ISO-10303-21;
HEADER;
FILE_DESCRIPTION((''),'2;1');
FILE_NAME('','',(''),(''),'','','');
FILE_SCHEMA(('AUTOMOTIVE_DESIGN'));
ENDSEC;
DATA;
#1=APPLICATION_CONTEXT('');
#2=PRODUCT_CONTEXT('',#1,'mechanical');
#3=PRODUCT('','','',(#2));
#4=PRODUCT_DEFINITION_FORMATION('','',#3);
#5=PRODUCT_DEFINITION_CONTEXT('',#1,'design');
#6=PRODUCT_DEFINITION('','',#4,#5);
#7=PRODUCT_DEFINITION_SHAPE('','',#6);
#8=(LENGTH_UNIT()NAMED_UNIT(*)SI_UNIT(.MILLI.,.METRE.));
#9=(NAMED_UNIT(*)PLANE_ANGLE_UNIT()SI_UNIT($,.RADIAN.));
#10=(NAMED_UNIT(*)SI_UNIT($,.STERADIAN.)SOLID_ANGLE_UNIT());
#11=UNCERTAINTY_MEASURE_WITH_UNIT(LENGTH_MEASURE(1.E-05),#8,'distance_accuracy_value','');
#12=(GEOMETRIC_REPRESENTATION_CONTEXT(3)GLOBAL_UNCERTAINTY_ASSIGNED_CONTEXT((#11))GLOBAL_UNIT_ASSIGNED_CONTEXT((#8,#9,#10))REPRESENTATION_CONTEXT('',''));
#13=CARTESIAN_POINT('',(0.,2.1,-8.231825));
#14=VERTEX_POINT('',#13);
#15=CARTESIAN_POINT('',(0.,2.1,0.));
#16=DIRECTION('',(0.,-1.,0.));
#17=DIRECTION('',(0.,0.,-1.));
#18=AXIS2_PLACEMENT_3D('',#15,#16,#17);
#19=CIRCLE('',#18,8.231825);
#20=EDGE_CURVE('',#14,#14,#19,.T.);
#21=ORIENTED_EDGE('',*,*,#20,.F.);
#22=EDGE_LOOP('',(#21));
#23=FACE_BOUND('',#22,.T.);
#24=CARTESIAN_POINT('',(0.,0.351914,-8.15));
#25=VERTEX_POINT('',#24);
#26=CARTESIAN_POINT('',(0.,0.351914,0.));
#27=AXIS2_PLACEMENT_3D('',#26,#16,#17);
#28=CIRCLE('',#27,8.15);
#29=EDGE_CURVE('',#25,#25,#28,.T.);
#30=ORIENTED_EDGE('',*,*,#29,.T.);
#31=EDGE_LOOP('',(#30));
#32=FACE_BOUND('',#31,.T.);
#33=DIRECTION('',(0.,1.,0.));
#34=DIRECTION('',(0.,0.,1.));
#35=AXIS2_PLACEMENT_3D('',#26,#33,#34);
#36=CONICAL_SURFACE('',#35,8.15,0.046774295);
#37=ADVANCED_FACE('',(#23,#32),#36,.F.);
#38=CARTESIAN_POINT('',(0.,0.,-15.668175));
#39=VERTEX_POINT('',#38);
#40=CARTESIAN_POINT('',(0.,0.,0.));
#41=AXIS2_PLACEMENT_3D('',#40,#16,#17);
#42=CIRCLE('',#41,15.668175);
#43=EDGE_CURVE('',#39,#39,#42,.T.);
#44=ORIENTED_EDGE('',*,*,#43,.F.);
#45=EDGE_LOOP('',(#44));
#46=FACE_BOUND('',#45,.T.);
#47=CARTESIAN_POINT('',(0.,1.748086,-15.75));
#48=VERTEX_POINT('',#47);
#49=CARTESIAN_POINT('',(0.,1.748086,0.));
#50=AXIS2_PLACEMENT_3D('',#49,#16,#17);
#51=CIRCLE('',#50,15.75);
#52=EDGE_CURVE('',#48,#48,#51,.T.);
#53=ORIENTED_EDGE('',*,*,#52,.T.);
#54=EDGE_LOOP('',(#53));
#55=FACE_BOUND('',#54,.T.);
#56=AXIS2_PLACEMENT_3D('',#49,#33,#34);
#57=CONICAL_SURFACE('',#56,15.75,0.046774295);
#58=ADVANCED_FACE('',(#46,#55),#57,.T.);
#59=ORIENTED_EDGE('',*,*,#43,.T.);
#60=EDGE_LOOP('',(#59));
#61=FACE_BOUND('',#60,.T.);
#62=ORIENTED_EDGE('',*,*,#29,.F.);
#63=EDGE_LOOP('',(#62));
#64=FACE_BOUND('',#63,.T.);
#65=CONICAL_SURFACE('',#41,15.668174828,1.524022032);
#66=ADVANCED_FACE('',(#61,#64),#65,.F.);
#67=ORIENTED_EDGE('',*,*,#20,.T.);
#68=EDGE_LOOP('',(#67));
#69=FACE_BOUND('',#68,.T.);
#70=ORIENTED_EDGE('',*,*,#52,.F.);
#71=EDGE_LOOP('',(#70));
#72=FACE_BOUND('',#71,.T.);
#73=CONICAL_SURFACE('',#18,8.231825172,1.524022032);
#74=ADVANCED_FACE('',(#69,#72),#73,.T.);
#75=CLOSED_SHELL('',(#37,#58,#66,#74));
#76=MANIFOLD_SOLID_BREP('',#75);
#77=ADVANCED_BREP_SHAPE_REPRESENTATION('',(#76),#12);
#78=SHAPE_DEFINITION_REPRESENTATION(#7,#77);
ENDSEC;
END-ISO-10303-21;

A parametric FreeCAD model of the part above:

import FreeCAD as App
import Part
import Sketcher

V = App.Vector
Q = App.Units.Quantity

doc = App.newDocument("Part")
body = doc.addObject("PartDesign::Body", "Body")

# Sketch on YZ plane
sketch1 = doc.addObject("Sketcher::SketchObject", "Sketch")
body.addObject(sketch1)
sketch1.AttachmentSupport = (doc.YZ_Plane, [""])
sketch1.MapMode = "FlatFace"
sketch1.addGeometry(Part.LineSegment(V(0, 15.668175, 0), V(0.351914, 8.15, 0)), False)
sketch1.addGeometry(Part.LineSegment(V(0.351914, 8.15, 0), V(2.1, 8.231825, 0)), False)
sketch1.addGeometry(Part.LineSegment(V(2.1, 8.231825, 0), V(1.748086, 15.75, 0)), False)
sketch1.addGeometry(Part.LineSegment(V(1.748086, 15.75, 0), V(0, 15.668175, 0)), False)
sketch1.addConstraint(Sketcher.Constraint("Coincident", 0, 2, 1, 1))
sketch1.addConstraint(Sketcher.Constraint("Coincident", 1, 2, 2, 1))
sketch1.addConstraint(Sketcher.Constraint("Coincident", 2, 2, 3, 1))
sketch1.addConstraint(Sketcher.Constraint("Coincident", 3, 2, 0, 1))
sketch1.addConstraint(Sketcher.Constraint("PointOnObject", 3, 2, -2))
sketch1.addConstraint(Sketcher.Constraint("Perpendicular", 0, 1))
sketch1.addConstraint(Sketcher.Constraint("Perpendicular", 1, 2))
sketch1.addConstraint(Sketcher.Constraint("Perpendicular", 2, 3))
sketch1.addConstraint(Sketcher.Constraint("DistanceX", -1, 1, 1, 2, Q("2.1 mm")))
sketch1.addConstraint(Sketcher.Constraint("DistanceY", 0, 2, 2, 2, Q("7.6 mm")))
sketch1.addConstraint(Sketcher.Constraint("Distance", 1, Q("1.75 mm")))
sketch1.addConstraint(Sketcher.Constraint("DistanceY", -1, 1, 0, 2, Q("8.15 mm")))
revolution = doc.addObject("PartDesign::Revolution", "Revolution")
body.addObject(revolution)
revolution.Profile = sketch1
revolution.ReferenceAxis = (sketch1, ["H_Axis"])
revolution.Angle = 360

doc.recompute()
